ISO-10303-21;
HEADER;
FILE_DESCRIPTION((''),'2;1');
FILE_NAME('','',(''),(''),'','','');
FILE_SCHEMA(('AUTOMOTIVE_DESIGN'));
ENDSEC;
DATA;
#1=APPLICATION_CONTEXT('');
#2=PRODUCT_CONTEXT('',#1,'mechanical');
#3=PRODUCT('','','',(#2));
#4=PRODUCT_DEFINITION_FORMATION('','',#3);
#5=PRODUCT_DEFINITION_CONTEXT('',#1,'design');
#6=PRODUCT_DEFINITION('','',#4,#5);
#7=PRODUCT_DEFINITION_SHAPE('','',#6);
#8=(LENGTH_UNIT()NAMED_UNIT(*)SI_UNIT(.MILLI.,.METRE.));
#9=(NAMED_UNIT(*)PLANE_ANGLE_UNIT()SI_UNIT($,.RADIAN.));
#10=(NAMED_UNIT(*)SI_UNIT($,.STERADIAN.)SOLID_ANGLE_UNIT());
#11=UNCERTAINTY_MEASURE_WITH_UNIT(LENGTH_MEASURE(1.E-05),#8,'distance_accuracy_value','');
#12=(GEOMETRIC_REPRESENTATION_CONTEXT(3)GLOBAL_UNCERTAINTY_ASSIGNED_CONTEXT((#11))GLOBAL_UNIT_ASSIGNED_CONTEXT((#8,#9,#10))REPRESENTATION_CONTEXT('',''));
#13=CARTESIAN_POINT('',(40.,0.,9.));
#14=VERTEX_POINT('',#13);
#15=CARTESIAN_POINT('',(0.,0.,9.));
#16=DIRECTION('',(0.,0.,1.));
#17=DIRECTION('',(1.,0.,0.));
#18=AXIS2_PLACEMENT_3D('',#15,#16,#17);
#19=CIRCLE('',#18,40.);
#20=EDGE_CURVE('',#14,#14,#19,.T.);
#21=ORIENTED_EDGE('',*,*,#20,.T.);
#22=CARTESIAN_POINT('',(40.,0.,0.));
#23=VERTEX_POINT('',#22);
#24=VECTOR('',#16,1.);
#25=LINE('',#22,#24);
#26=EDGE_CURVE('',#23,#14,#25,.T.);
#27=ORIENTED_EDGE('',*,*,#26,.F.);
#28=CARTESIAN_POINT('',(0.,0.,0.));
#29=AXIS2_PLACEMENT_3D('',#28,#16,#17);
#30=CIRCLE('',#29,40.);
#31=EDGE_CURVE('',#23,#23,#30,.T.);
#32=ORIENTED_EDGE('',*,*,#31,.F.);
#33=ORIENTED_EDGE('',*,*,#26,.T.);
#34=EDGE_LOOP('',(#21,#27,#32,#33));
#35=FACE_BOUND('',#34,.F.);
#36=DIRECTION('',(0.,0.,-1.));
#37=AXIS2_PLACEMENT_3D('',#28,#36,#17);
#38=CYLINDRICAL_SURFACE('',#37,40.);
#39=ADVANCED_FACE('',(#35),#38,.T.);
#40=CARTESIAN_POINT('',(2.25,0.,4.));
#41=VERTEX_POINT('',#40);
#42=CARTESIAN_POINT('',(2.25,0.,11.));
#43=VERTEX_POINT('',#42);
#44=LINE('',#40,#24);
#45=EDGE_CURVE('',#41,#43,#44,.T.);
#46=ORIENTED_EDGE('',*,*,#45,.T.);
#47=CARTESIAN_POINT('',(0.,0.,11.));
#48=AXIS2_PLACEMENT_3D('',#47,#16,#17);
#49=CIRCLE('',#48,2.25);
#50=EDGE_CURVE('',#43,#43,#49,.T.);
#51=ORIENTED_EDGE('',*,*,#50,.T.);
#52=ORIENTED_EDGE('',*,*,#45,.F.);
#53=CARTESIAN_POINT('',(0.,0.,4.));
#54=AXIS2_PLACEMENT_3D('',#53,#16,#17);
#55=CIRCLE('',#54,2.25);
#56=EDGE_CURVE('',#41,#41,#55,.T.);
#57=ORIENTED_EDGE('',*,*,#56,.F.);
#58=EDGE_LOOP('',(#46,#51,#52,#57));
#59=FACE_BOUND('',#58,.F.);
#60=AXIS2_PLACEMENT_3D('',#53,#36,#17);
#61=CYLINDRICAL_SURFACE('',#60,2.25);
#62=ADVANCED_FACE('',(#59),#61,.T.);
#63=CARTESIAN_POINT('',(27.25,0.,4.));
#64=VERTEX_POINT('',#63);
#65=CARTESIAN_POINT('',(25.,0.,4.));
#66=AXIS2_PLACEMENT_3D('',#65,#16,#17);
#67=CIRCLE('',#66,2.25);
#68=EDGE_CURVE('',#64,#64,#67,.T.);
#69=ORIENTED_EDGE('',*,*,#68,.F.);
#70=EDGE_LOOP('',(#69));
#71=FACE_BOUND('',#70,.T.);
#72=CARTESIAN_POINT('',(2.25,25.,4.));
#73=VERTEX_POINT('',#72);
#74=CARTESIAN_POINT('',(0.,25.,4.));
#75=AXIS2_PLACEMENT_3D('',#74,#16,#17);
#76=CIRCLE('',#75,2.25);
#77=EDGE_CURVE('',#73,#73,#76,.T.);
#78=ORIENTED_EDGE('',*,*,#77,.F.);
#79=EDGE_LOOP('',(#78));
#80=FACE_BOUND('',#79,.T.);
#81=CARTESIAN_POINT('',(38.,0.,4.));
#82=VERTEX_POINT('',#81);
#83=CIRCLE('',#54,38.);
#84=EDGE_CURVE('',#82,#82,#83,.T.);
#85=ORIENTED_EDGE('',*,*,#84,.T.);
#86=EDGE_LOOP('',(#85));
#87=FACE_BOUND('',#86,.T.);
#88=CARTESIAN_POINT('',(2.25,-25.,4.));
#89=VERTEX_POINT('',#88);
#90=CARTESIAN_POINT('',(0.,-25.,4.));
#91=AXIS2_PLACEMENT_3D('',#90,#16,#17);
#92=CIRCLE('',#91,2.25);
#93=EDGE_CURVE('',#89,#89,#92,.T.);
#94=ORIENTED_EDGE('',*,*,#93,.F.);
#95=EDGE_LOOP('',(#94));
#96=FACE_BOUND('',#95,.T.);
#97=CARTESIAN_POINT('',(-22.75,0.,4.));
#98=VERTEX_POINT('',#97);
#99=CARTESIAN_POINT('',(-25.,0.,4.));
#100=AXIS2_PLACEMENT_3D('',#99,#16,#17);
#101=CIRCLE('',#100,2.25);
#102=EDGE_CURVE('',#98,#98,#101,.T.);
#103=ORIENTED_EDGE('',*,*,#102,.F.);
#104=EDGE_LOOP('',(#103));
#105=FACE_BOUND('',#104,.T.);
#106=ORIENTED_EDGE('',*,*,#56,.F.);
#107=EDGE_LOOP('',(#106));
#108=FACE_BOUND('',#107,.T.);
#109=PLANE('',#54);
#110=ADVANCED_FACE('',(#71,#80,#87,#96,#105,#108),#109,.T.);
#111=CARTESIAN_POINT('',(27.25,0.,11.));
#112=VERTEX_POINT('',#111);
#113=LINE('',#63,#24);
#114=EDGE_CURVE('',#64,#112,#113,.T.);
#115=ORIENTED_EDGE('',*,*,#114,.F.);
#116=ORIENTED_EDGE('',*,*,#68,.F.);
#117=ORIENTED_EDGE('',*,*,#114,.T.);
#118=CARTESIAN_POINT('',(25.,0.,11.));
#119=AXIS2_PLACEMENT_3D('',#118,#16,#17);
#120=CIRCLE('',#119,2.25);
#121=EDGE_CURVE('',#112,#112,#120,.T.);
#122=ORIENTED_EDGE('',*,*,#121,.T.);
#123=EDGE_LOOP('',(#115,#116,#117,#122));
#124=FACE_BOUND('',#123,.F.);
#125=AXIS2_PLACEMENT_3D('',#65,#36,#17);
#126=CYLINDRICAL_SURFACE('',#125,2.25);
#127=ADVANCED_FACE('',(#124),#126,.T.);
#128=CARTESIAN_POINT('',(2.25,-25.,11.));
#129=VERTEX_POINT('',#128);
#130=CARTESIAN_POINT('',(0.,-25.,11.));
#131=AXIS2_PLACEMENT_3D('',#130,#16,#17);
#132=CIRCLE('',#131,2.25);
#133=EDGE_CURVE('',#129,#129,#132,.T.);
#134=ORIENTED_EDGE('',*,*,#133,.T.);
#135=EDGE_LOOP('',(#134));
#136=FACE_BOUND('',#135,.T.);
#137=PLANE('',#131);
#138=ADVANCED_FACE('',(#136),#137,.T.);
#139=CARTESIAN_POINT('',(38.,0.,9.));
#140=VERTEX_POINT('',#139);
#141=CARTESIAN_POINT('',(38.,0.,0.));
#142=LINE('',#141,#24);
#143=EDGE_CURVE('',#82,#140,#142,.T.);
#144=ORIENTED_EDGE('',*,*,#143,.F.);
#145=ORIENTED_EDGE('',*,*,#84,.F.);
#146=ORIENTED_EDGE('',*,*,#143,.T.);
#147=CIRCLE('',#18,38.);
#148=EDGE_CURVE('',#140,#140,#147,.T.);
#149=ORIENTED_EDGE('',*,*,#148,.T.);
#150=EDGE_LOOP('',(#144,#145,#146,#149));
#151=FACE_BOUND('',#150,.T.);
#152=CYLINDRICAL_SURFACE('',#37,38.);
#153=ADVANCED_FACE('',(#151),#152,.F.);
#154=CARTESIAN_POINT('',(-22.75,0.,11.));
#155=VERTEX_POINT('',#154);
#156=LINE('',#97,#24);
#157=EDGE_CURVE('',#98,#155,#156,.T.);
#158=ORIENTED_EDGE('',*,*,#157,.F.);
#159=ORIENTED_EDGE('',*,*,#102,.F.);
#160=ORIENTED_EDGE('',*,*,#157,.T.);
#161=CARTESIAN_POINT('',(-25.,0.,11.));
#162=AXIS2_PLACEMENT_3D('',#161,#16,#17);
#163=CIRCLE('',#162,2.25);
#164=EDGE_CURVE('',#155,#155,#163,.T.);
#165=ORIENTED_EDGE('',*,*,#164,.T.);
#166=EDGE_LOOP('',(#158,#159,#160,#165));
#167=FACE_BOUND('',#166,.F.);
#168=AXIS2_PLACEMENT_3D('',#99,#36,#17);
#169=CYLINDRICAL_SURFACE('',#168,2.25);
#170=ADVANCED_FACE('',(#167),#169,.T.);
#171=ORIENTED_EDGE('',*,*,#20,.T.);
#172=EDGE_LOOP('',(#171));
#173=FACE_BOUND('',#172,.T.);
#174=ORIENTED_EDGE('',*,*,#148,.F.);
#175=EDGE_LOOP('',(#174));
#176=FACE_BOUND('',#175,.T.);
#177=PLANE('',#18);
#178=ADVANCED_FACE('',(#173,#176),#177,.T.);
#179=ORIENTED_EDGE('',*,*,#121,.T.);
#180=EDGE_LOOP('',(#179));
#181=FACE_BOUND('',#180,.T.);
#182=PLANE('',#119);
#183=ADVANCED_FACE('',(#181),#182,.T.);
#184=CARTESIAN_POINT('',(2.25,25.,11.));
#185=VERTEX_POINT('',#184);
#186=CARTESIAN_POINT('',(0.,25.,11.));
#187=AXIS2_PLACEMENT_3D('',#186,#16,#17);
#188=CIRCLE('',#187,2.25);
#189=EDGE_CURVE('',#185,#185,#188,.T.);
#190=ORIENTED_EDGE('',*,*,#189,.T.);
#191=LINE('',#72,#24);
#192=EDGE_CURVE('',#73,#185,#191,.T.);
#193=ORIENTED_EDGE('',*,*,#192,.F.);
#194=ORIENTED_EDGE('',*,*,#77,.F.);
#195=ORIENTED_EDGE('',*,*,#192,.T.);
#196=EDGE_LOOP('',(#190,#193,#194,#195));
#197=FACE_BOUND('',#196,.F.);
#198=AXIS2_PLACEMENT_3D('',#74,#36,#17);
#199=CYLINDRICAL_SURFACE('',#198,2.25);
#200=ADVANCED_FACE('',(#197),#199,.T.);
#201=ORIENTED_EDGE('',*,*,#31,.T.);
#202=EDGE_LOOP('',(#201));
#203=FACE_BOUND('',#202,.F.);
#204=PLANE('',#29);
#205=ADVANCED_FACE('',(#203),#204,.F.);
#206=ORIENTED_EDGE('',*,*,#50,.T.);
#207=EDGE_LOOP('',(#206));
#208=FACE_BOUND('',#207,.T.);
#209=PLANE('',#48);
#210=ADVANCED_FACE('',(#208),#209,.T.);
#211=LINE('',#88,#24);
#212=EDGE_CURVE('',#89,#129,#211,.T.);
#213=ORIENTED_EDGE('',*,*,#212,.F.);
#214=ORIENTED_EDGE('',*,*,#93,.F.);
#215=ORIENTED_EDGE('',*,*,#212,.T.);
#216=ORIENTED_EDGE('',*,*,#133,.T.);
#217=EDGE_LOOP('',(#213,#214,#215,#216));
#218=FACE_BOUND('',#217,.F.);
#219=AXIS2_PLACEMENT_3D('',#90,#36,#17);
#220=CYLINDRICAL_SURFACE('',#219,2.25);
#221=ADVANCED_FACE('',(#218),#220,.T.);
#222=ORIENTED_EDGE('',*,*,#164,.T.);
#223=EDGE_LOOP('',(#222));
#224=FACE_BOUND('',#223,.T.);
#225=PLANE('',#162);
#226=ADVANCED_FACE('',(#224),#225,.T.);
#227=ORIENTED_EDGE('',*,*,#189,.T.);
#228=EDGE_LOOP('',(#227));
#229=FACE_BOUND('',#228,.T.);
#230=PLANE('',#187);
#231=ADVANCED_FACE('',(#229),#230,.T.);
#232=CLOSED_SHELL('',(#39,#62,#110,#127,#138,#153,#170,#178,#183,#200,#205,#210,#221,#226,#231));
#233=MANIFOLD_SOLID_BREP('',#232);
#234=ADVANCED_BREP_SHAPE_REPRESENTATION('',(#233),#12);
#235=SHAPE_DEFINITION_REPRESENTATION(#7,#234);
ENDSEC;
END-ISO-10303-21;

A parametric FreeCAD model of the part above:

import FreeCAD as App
import Part
import Sketcher
from FreeCAD import Vector

doc = App.newDocument("Part")
body = doc.addObject("PartDesign::Body", "Body")

sketch1 = body.newObject("Sketcher::SketchObject", "Sketch")
sketch1.AttachmentSupport = (doc.getObject("XY_Plane"), [""])
sketch1.MapMode = "FlatFace"
sketch1.addGeometry([
    Part.Circle(Vector(0, 0, 0), Vector(0, 0, 1), 40),
    Part.Circle(Vector(0, 0, 0), Vector(0, 0, 1), 38),
], False)
sketch1.addConstraint([
    Sketcher.Constraint("Coincident", 0, 3, -1, 1),
    Sketcher.Constraint("Coincident", 1, 3, -1, 1),
    Sketcher.Constraint("Diameter", 0, 80.0),
    Sketcher.Constraint("Diameter", 1, 76.0),
])
pad1 = body.newObject("PartDesign::Pad", "Pad")
pad1.Profile = sketch1
pad1.Length = 9

sketch2 = body.newObject("Sketcher::SketchObject", "Sketch001")
sketch2.AttachmentSupport = (doc.getObject("XY_Plane"), [""])
sketch2.MapMode = "FlatFace"
sketch2.addGeometry(Part.Circle(Vector(0, 0, 0), Vector(0, 0, 1), 38), False)
sketch2.addConstraint([
    Sketcher.Constraint("Coincident", 0, 3, -1, 1),
    Sketcher.Constraint("Diameter", 0, 76.0),
])
pad2 = body.newObject("PartDesign::Pad", "Pad001")
pad2.Profile = sketch2
pad2.Length = 4

sketch3 = body.newObject("Sketcher::SketchObject", "Sketch002")
sketch3.AttachmentSupport = (doc.getObject("XY_Plane"), [""])
sketch3.MapMode = "FlatFace"
sketch3.AttachmentOffset = App.Placement(Vector(0, 0, 4), App.Rotation())
sketch3.addGeometry([
    Part.Circle(Vector(0, 0, 0), Vector(0, 0, 1), 2.2),
    Part.Circle(Vector(-25, 0, 0), Vector(0, 0, 1), 2.2),
    Part.Circle(Vector(25, 0, 0), Vector(0, 0, 1), 2.2),
    Part.Circle(Vector(0, 25, 0), Vector(0, 0, 1), 2.2),
    Part.Circle(Vector(0, -25, 0), Vector(0, 0, 1), 2.2),
], False)
sketch3.addConstraint([
    Sketcher.Constraint("Coincident", 0, 3, -1, 1),
    Sketcher.Constraint("Equal", 0, 1),
    Sketcher.Constraint("Equal", 1, 2),
    Sketcher.Constraint("Equal", 2, 3),
    Sketcher.Constraint("Equal", 3, 4),
    Sketcher.Constraint("Symmetric", 1, 3, 2, 3, -1, 1),
    Sketcher.Constraint("Symmetric", 3, 3, 4, 3, -1, 1),
    Sketcher.Constraint("PointOnObject", 1, 3, -1),
    Sketcher.Constraint("PointOnObject", 3, 3, -2),
    Sketcher.Constraint("Diameter", 0, 4.5),
    Sketcher.Constraint("DistanceX", 1, 3, -1, 1, 25.0),
    Sketcher.Constraint("DistanceY", -1, 1, 3, 3, 25.0),
])
pad3 = body.newObject("PartDesign::Pad", "Pad002")
pad3.Profile = sketch3
pad3.Length = 7

doc.recompute()
